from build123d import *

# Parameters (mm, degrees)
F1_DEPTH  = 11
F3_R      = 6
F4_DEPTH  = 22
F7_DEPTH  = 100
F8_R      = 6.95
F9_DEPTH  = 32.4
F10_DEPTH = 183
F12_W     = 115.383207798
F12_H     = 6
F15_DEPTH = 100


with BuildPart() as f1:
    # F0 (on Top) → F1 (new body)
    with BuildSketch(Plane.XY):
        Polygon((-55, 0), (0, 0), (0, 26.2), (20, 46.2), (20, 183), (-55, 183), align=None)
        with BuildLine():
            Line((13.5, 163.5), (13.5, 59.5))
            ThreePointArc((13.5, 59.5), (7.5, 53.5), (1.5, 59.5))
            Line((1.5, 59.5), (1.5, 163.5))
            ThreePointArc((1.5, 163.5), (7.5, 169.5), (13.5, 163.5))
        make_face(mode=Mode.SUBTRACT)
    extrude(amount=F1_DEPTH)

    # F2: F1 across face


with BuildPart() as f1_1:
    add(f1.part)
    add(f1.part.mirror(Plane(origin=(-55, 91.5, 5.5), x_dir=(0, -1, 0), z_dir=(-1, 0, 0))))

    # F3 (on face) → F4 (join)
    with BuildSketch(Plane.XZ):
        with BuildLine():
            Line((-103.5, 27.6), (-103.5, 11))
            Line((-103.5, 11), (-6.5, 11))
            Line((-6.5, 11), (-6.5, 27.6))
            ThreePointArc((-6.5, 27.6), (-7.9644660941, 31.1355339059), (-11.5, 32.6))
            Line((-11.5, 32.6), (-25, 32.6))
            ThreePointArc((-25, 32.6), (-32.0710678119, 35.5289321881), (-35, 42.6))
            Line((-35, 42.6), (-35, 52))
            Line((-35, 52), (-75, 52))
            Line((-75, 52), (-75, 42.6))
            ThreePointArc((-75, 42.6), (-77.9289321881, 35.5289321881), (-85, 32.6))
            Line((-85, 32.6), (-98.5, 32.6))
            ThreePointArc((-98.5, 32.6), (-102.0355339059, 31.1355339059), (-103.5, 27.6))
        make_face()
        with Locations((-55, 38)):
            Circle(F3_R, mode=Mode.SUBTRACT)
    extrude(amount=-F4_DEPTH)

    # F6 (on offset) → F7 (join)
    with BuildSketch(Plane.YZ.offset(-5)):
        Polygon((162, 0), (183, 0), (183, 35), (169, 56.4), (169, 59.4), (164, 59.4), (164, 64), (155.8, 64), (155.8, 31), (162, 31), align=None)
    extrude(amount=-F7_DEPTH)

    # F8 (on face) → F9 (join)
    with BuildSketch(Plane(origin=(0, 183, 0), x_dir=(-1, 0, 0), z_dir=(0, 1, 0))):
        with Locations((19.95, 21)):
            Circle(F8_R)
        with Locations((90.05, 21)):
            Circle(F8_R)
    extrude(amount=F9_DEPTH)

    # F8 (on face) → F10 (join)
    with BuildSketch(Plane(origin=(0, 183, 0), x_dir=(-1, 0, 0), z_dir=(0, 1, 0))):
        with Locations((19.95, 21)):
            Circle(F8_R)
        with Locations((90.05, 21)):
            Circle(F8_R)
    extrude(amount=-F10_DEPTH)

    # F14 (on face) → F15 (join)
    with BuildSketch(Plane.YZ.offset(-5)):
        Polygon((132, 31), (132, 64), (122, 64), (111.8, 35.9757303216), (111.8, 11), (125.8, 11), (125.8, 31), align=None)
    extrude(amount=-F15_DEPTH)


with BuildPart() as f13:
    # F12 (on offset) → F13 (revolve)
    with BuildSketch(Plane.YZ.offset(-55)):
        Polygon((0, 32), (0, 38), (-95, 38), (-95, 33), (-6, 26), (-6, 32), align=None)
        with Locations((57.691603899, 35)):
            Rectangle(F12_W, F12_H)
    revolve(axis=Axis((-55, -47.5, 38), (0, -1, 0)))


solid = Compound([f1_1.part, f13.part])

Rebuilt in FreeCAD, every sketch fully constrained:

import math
import FreeCAD as App
import Part
import Sketcher
from FreeCAD import Vector
Q = App.Units.Quantity


def add_polygon(sketch, points):
    """Adds a closed chain of lines whose ends are joined by coincident constraints."""
    first, n = sketch.GeometryCount, len(points)
    for a, b in zip(points, points[1:] + points[:1]):
        sketch.addGeometry(Part.LineSegment(App.Vector(*a, 0), App.Vector(*b, 0)), False)
    for i in range(n):
        sketch.addConstraint(Sketcher.Constraint("Coincident", first + i, 2, first + (i + 1) % n, 1))

doc = App.newDocument("Part")
body = doc.addObject("PartDesign::Body", "Body")

# Sketch on XY plane
sketch1 = body.newObject("Sketcher::SketchObject", "Sketch")
sketch1.AttachmentSupport = (doc.getObject("XY_Plane"), [""])
sketch1.MapMode = "FlatFace"
add_polygon(sketch1, [(-55, 0), (0, 0), (0, 26), (20, 46), (20, 183), (-55, 183)])  # lines 0-5
sketch1.addGeometry(Part.ArcOfCircle(Part.Circle(Vector(8, 164, 0), Vector(0, 0, 1), 6), math.radians(0), math.radians(180)), False)  # 6
sketch1.addGeometry(Part.LineSegment(Vector(14, 164, 0), Vector(14, 60, 0)), False)  # 7
sketch1.addGeometry(Part.ArcOfCircle(Part.Circle(Vector(8, 60, 0), Vector(0, 0, 1), 6), math.radians(180), math.radians(360)), False)  # 8
sketch1.addGeometry(Part.LineSegment(Vector(2, 60, 0), Vector(2, 164, 0)), False)  # 9
sketch1.addConstraint([
    Sketcher.Constraint("Tangent", 6, 1, 7, 1),
    Sketcher.Constraint("Tangent", 7, 2, 8, 2),
    Sketcher.Constraint("Tangent", 8, 1, 9, 1),
    Sketcher.Constraint("Tangent", 9, 2, 6, 2),
    Sketcher.Constraint("Horizontal", 0),
    Sketcher.Constraint("Vertical", 1),
    Sketcher.Constraint("Vertical", 3),
    Sketcher.Constraint("Horizontal", 4),
    Sketcher.Constraint("Vertical", 5),
    Sketcher.Constraint("Vertical", 7),
    Sketcher.Constraint("Vertical", 9),
    Sketcher.Constraint("Coincident", 0, 2, -1, 1),
    Sketcher.Constraint("Radius", 6, Q("6 mm")),
    Sketcher.Constraint("DistanceX", 0, 1, 0, 2, Q("55 mm")),
    Sketcher.Constraint("DistanceX", 4, 2, 4, 1, Q("75 mm")),
    Sketcher.Constraint("DistanceY", 5, 2, 5, 1, Q("183 mm")),
    Sketcher.Constraint("DistanceY", 7, 2, 7, 1, Q("104 mm")),
    Sketcher.Constraint("Angle", 2, Q("45 deg")),
    Sketcher.Constraint("DistanceY", 1, 1, 1, 2, Q("26.2 mm")),
    Sketcher.Constraint("DistanceX", -1, 1, 6, 3, Q("7.5 mm")),
    Sketcher.Constraint("DistanceY", -1, 1, 6, 3, Q("163.5 mm")),
])
pad1 = body.newObject("PartDesign::Pad", "Pad")
pad1.Profile = sketch1
pad1.Length = 11
body2 = doc.addObject("PartDesign::Body", "Body001")
doc.recompute()

body2.BaseFeature = body
doc.recompute()

mirroring = doc.addObject("Part::Mirroring", "Mirroring")
mirroring.Source = body
mirroring.Base = Vector(-55, 91.5, 5.5)
mirroring.Normal = Vector(-1, 0, 0)
body3 = doc.addObject("PartDesign::Body", "Body002")
body3.BaseFeature = mirroring
boolean = body2.newObject("PartDesign::Boolean", "Boolean")
boolean.Type = "Fuse"
boolean.addObjects([body3])
doc.recompute()

# Sketch on XZ plane
sketch2 = body2.newObject("Sketcher::SketchObject", "Sketch001")
sketch2.AttachmentSupport = (doc.getObject("XZ_Plane001"), [""])
sketch2.MapMode = "FlatFace"
sketch2.addGeometry([
    Part.LineSegment(Vector(-104, 28, 0), Vector(-104, 11, 0)),  # 0
    Part.LineSegment(Vector(-104, 11, 0), Vector(-6, 11, 0)),  # 1
    Part.LineSegment(Vector(-6, 11, 0), Vector(-6, 28, 0)),  # 2
    Part.ArcOfCircle(Part.Circle(Vector(-12, 28, 0), Vector(0, 0, 1), 5), math.radians(0), math.radians(90)),  # 3
    Part.LineSegment(Vector(-12, 33, 0), Vector(-25, 33, 0)),  # 4
    Part.ArcOfCircle(Part.Circle(Vector(-25, 43, 0), Vector(0, 0, 1), 10), math.radians(180), math.radians(270)),  # 5
    Part.LineSegment(Vector(-35, 43, 0), Vector(-35, 52, 0)),  # 6
    Part.LineSegment(Vector(-35, 52, 0), Vector(-75, 52, 0)),  # 7
    Part.LineSegment(Vector(-75, 52, 0), Vector(-75, 43, 0)),  # 8
    Part.ArcOfCircle(Part.Circle(Vector(-85, 43, 0), Vector(0, 0, 1), 10), math.radians(-90), math.radians(0)),  # 9
    Part.LineSegment(Vector(-85, 33, 0), Vector(-98, 33, 0)),  # 10
    Part.ArcOfCircle(Part.Circle(Vector(-98, 28, 0), Vector(0, 0, 1), 5), math.radians(90), math.radians(180)),  # 11
    Part.Circle(Vector(-55, 38, 0), Vector(0, 0, 1), 6),  # 12
], False)
sketch2.addConstraint([
    Sketcher.Constraint("Coincident", 0, 2, 1, 1),
    Sketcher.Constraint("Coincident", 1, 2, 2, 1),
    Sketcher.Constraint("Tangent", 2, 2, 3, 1),
    Sketcher.Constraint("Tangent", 3, 2, 4, 1),
    Sketcher.Constraint("Tangent", 4, 2, 5, 2),
    Sketcher.Constraint("Tangent", 5, 1, 6, 1),
    Sketcher.Constraint("Coincident", 6, 2, 7, 1),
    Sketcher.Constraint("Coincident", 7, 2, 8, 1),
    Sketcher.Constraint("Tangent", 8, 2, 9, 2),
    Sketcher.Constraint("Tangent", 9, 1, 10, 1),
    Sketcher.Constraint("Tangent", 10, 2, 11, 1),
    Sketcher.Constraint("Tangent", 11, 2, 0, 1),
    Sketcher.Constraint("Vertical", 0),
    Sketcher.Constraint("Horizontal", 1),
    Sketcher.Constraint("Vertical", 2),
    Sketcher.Constraint("Horizontal", 4),
    Sketcher.Constraint("Vertical", 6),
    Sketcher.Constraint("Horizontal", 7),
    Sketcher.Constraint("Vertical", 8),
    Sketcher.Constraint("Horizontal", 10),
    Sketcher.Constraint("Equal", 5, 9),
    Sketcher.Constraint("Equal", 3, 11),
    Sketcher.Constraint("Horizontal", 5, 3, 9, 3),
    Sketcher.Constraint("Equal", 4, 10),
    Sketcher.Constraint("Diameter", 12, Q("12 mm")),
    Sketcher.Constraint("Radius", 3, Q("5 mm")),
    Sketcher.Constraint("Radius", 5, Q("10 mm")),
    Sketcher.Constraint("DistanceX", 1, 1, 1, 2, Q("97 mm")),
    Sketcher.Constraint("DistanceX", 7, 2, 7, 1, Q("40 mm")),
    Sketcher.Constraint("DistanceY", 0, 2, 0, 1, Q("16.6 mm")),
    Sketcher.Constraint("DistanceY", 6, 1, 6, 2, Q("9.4 mm")),
    Sketcher.Constraint("DistanceX", 5, 3, -1, 1, Q("25 mm")),
    Sketcher.Constraint("DistanceX", 12, 3, -1, 1, Q("55 mm")),
    Sketcher.Constraint("DistanceY", -1, 1, 12, 3, Q("38 mm")),
    Sketcher.Constraint("DistanceY", -1, 1, 0, 2, Q("11 mm")),
])
pad2 = body2.newObject("PartDesign::Pad", "Pad001")
pad2.Profile = sketch2
pad2.Length = 22
pad2.Reversed = True

# Sketch on YZ plane
sketch3 = body2.newObject("Sketcher::SketchObject", "Sketch002")
sketch3.AttachmentSupport = (doc.getObject("YZ_Plane001"), [""])
sketch3.MapMode = "FlatFace"
sketch3.AttachmentOffset = App.Placement(Vector(0, 0, -5), App.Rotation())
add_polygon(sketch3, [(162, 0), (183, 0), (183, 35), (169, 56.4), (169, 59.4), (164, 59.4), (164, 64), (155.8, 64), (155.8, 31), (162, 31)])  # lines 0-9
sketch3.addConstraint([
    Sketcher.Constraint("Horizontal", 0),
    Sketcher.Constraint("Vertical", 1),
    Sketcher.Constraint("Vertical", 3),
    Sketcher.Constraint("Horizontal", 4),
    Sketcher.Constraint("Vertical", 5),
    Sketcher.Constraint("Horizontal", 6),
    Sketcher.Constraint("Vertical", 7),
    Sketcher.Constraint("Horizontal", 8),
    Sketcher.Constraint("Vertical", 9),
    Sketcher.Constraint("PointOnObject", 0, 2, -1),
    Sketcher.Constraint("DistanceX", 0, 1, 0, 2, Q("21 mm")),
    Sketcher.Constraint("DistanceX", 4, 2, 4, 1, Q("5 mm")),
    Sketcher.Constraint("DistanceY", 1, 1, 1, 2, Q("35 mm")),
    Sketcher.Constraint("DistanceY", 3, 1, 3, 2, Q("3 mm")),
    Sketcher.Constraint("DistanceY", 7, 2, 7, 1, Q("33 mm")),
    Sketcher.Constraint("DistanceY", 9, 2, 9, 1, Q("31 mm")),
    Sketcher.Constraint("DistanceX", 6, 2, 6, 1, Q("8.2 mm")),
    Sketcher.Constraint("DistanceX", 8, 1, 8, 2, Q("6.2 mm")),
    Sketcher.Constraint("DistanceY", 5, 1, 5, 2, Q("4.6 mm")),
    Sketcher.Constraint("DistanceX", -1, 1, 0, 2, Q("183 mm")),
])
pad3 = body2.newObject("PartDesign::Pad", "Pad002")
pad3.Profile = sketch3
pad3.Length = 100
pad3.Reversed = True

# Sketch on XZ plane
sketch4 = body2.newObject("Sketcher::SketchObject", "Sketch003")
sketch4.AttachmentSupport = (doc.getObject("XZ_Plane001"), [""])
sketch4.MapMode = "FlatFace"
sketch4.AttachmentOffset = App.Placement(Vector(0, 0, -183), App.Rotation())
sketch4.addGeometry([
    Part.Circle(Vector(-20, 21, 0), Vector(0, 0, 1), 7),
    Part.Circle(Vector(-90, 21, 0), Vector(0, 0, 1), 7),
], False)
sketch4.addConstraint([
    Sketcher.Constraint("Equal", 0, 1),
    Sketcher.Constraint("Horizontal", 0, 3, 1, 3),
    Sketcher.Constraint("Diameter", 0, Q("13.9 mm")),
    Sketcher.Constraint("DistanceY", -1, 1, 0, 3, Q("21 mm")),
    Sketcher.Constraint("DistanceX", 1, 3, 0, 3, Q("70.1 mm")),
    Sketcher.Constraint("DistanceX", 0, 3, -1, 1, Q("19.95 mm")),
])
pad4 = body2.newObject("PartDesign::Pad", "Pad003")
pad4.Profile = sketch4
pad4.Length = 32.4
pad4.Reversed = True

# Sketch on XZ plane
sketch5 = body2.newObject("Sketcher::SketchObject", "Sketch004")
sketch5.AttachmentSupport = (doc.getObject("XZ_Plane001"), [""])
sketch5.MapMode = "FlatFace"
sketch5.AttachmentOffset = App.Placement(Vector(0, 0, -183), App.Rotation())
sketch5.addGeometry([
    Part.Circle(Vector(-20, 21, 0), Vector(0, 0, 1), 7),
    Part.Circle(Vector(-90, 21, 0), Vector(0, 0, 1), 7),
], False)
sketch5.addConstraint([
    Sketcher.Constraint("Equal", 0, 1),
    Sketcher.Constraint("Horizontal", 0, 3, 1, 3),
    Sketcher.Constraint("Diameter", 0, Q("13.9 mm")),
    Sketcher.Constraint("DistanceY", -1, 1, 0, 3, Q("21 mm")),
    Sketcher.Constraint("DistanceX", 1, 3, 0, 3, Q("70.1 mm")),
    Sketcher.Constraint("DistanceX", 0, 3, -1, 1, Q("19.95 mm")),
])
pad5 = body2.newObject("PartDesign::Pad", "Pad004")
pad5.Profile = sketch5
pad5.Length = 183

# Sketch on YZ plane
sketch6 = body2.newObject("Sketcher::SketchObject", "Sketch005")
sketch6.AttachmentSupport = (doc.getObject("YZ_Plane001"), [""])
sketch6.MapMode = "FlatFace"
sketch6.AttachmentOffset = App.Placement(Vector(0, 0, -5), App.Rotation())
add_polygon(sketch6, [(132, 31), (132, 64), (122, 64), (112, 36), (112, 11), (126, 11), (126, 31)])  # lines 0-6
sketch6.addConstraint([
    Sketcher.Constraint("Vertical", 0),
    Sketcher.Constraint("Horizontal", 1),
    Sketcher.Constraint("Vertical", 3),
    Sketcher.Constraint("Horizontal", 4),
    Sketcher.Constraint("Vertical", 5),
    Sketcher.Constraint("Horizontal", 6),
    Sketcher.Constraint("DistanceX", 1, 2, 1, 1, Q("10 mm")),
    Sketcher.Constraint("DistanceX", 4, 1, 4, 2, Q("14 mm")),
    Sketcher.Constraint("DistanceY", 0, 1, 0, 2, Q("33 mm")),
    Sketcher.Constraint("DistanceY", 5, 1, 5, 2, Q("20 mm")),
    Sketcher.Constraint("Angle", 2, Q("-110 deg")),
    Sketcher.Constraint("DistanceX", 6, 1, 6, 2, Q("6.2 mm")),
    Sketcher.Constraint("DistanceX", -1, 1, 0, 2, Q("132 mm")),
    Sketcher.Constraint("DistanceY", -1, 1, 0, 2, Q("64 mm")),
])
pad6 = body2.newObject("PartDesign::Pad", "Pad005")
pad6.Profile = sketch6
pad6.Length = 100
pad6.Reversed = True
body4 = doc.addObject("PartDesign::Body", "Body003")

# Sketch on YZ plane
sketch7 = body4.newObject("Sketcher::SketchObject", "Sketch006")
sketch7.AttachmentSupport = (doc.getObject("YZ_Plane003"), [""])
sketch7.MapMode = "FlatFace"
sketch7.AttachmentOffset = App.Placement(Vector(0, 0, -55), App.Rotation())
add_polygon(sketch7, [(-95, 38), (-95, 33), (-6, 26), (-6, 32), (115, 32), (115, 38)])  # lines 0-5
sketch7.addGeometry(Part.LineSegment(Vector(115, 38, 0), Vector(-95, 38, 0)), True)  # axis
sketch7.addConstraint([
    Sketcher.Constraint("Vertical", 0),
    Sketcher.Constraint("Vertical", 2),
    Sketcher.Constraint("Horizontal", 3),
    Sketcher.Constraint("Vertical", 4),
    Sketcher.Constraint("Horizontal", 5),
    Sketcher.Constraint("Horizontal", 6),
    Sketcher.Constraint("Coincident", 6, 1, 4, 2),
    Sketcher.Constraint("Vertical", 0, 2, 6, 2),
    Sketcher.Constraint("Equal", 2, 4),
    Sketcher.Constraint("DistanceY", 0, 2, 0, 1, Q("5 mm")),
    Sketcher.Constraint("DistanceY", 2, 1, 2, 2, Q("6 mm")),
    Sketcher.Constraint("DistanceX", 0, 2, -1, 1, Q("95 mm")),
    Sketcher.Constraint("DistanceY", -1, 1, 0, 2, Q("33 mm")),
    Sketcher.Constraint("DistanceX", 1, 2, -1, 1, Q("6 mm")),
    Sketcher.Constraint("DistanceX", 3, 1, 3, 2, Q("121.383208 mm")),
])
revolution = body4.newObject("PartDesign::Revolution", "Revolution")
revolution.Profile = sketch7
revolution.ReferenceAxis = (sketch7, ["Axis0"])
revolution.Angle = 360
mirroring.Visibility = False

doc.recompute()
